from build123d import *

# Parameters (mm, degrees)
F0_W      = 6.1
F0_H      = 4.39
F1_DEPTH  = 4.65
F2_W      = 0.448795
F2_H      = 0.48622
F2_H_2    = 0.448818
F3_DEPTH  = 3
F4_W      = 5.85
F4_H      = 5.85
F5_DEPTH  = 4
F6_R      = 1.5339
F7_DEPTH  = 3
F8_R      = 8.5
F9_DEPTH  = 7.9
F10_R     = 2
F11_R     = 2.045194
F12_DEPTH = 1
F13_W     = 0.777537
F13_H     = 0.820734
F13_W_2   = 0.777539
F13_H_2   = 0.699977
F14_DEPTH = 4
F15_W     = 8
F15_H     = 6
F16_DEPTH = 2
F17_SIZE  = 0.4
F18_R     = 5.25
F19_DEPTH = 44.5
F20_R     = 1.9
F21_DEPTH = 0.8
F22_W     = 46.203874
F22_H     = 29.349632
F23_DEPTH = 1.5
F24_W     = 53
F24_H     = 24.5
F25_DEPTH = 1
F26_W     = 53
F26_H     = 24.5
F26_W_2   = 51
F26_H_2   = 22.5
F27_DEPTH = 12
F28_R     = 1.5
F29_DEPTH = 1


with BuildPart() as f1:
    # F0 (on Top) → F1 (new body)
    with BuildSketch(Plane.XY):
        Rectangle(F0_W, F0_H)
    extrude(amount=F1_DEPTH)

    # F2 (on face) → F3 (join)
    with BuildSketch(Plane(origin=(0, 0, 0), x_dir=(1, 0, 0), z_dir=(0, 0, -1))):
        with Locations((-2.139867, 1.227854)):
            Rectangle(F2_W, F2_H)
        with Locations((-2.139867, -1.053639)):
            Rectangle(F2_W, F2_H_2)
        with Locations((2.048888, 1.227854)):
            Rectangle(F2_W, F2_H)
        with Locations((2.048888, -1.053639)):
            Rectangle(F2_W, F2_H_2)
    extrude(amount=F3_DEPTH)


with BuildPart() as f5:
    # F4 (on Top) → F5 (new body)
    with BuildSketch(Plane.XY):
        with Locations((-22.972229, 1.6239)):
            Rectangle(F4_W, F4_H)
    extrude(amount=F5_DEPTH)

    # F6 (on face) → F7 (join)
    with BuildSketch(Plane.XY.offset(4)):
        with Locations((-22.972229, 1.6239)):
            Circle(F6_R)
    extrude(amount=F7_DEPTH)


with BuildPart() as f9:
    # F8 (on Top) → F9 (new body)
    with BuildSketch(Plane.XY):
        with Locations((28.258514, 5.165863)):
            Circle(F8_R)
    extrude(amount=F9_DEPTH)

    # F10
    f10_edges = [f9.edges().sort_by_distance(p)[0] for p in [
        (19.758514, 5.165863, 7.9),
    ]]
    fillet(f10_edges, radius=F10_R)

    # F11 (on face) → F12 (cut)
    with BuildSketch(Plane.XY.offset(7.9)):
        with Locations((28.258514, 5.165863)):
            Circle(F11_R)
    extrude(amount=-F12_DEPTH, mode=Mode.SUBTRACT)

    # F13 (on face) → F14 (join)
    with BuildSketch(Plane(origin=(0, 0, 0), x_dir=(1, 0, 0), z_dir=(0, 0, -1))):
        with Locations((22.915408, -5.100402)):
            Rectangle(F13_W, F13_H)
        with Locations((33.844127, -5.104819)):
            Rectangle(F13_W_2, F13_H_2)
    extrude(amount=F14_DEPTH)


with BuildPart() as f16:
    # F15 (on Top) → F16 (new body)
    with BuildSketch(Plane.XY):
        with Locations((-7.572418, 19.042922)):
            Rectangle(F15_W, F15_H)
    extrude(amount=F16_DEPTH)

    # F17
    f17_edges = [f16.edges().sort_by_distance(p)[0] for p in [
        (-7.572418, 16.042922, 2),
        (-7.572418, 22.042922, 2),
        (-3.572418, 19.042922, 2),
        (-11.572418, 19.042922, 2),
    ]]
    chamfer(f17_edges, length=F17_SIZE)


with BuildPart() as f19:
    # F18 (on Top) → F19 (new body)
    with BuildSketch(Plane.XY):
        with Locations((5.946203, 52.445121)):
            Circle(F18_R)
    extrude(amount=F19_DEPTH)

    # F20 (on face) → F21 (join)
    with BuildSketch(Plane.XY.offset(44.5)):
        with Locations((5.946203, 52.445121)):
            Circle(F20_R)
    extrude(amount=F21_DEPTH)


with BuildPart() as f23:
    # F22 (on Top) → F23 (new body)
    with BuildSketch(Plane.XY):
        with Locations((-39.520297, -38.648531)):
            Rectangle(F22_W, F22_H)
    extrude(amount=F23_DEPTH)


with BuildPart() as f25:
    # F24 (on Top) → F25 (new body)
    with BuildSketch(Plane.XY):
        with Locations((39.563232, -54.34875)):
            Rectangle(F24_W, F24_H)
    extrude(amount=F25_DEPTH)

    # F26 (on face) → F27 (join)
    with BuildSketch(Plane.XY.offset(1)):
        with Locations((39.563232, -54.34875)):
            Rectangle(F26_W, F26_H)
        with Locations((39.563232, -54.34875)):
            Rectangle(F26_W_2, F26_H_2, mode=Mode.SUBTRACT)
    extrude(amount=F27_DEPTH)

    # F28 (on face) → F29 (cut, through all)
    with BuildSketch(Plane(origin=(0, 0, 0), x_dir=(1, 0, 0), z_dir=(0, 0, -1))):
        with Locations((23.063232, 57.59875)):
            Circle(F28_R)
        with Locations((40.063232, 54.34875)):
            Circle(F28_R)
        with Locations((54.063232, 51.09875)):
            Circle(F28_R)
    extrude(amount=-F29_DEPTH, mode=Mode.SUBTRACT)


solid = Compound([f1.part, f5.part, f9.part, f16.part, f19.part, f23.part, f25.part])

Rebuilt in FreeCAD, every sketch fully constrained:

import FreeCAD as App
import Part
import Sketcher
from FreeCAD import Vector


def edges_at(feature, points):
    """Names of the edges that pass closest to the given points."""
    edges = feature.Shape.Edges
    near = lambda p: min(range(len(edges)), key=lambda i: edges[i].distToShape(Part.Vertex(*p))[0])
    return sorted({f"Edge{near(p) + 1}" for p in points})

doc = App.newDocument("Part")
body = doc.addObject("PartDesign::Body", "Body")

# Sketch on XY plane
sketch1 = doc.addObject("Sketcher::SketchObject", "Sketch")
body.addObject(sketch1)
sketch1.AttachmentSupport = (doc.XY_Plane, [""])
sketch1.MapMode = "FlatFace"
sketch1.addGeometry([
    Part.LineSegment(Vector(-3, 2.2, 0), Vector(-3, -2.2, 0)),
    Part.LineSegment(Vector(-3, -2.2, 0), Vector(3, -2.2, 0)),
    Part.LineSegment(Vector(3, -2.2, 0), Vector(3, 2.2, 0)),
    Part.LineSegment(Vector(3, 2.2, 0), Vector(-3, 2.2, 0)),
], False)
sketch1.addConstraint([
    Sketcher.Constraint("Coincident", 0, 2, 1, 1),
    Sketcher.Constraint("Coincident", 1, 2, 2, 1),
    Sketcher.Constraint("Coincident", 2, 2, 3, 1),
    Sketcher.Constraint("Coincident", 3, 2, 0, 1),
    Sketcher.Constraint("Vertical", 0),
    Sketcher.Constraint("Horizontal", 1),
    Sketcher.Constraint("Vertical", 2),
    Sketcher.Constraint("Horizontal", 3),
    Sketcher.Constraint("Symmetric", 0, 2, 2, 2, -1, 1),
    Sketcher.Constraint("DistanceX", 1, 1, 1, 2, 6.1),
    Sketcher.Constraint("DistanceY", 0, 2, 0, 1, 4.39),
])
pad1 = doc.addObject("PartDesign::Pad", "Pad")
body.addObject(pad1)
pad1.Profile = sketch1
pad1.Length = 4.65

# Sketch on XY plane
sketch2 = doc.addObject("Sketcher::SketchObject", "Sketch001")
body.addObject(sketch2)
sketch2.AttachmentSupport = (doc.XY_Plane, [""])
sketch2.MapMode = "FlatFace"
sketch2.addGeometry([
    Part.LineSegment(Vector(-2.36, -1.47, 0), Vector(-2.36, -0.98, 0)),  # 0
    Part.LineSegment(Vector(-2.36, -0.98, 0), Vector(-1.92, -0.98, 0)),  # 1
    Part.LineSegment(Vector(-1.92, -0.98, 0), Vector(-1.92, -1.47, 0)),  # 2
    Part.LineSegment(Vector(-1.92, -1.47, 0), Vector(-2.36, -1.47, 0)),  # 3
    Part.LineSegment(Vector(-2.36, 0.83, 0), Vector(-2.36, 1.28, 0)),  # 4
    Part.LineSegment(Vector(-2.36, 1.28, 0), Vector(-1.92, 1.28, 0)),  # 5
    Part.LineSegment(Vector(-1.92, 1.28, 0), Vector(-1.92, 0.83, 0)),  # 6
    Part.LineSegment(Vector(-1.92, 0.83, 0), Vector(-2.36, 0.83, 0)),  # 7
    Part.LineSegment(Vector(1.82, -1.47, 0), Vector(1.82, -0.98, 0)),  # 8
    Part.LineSegment(Vector(1.82, -0.98, 0), Vector(2.27, -0.98, 0)),  # 9
    Part.LineSegment(Vector(2.27, -0.98, 0), Vector(2.27, -1.47, 0)),  # 10
    Part.LineSegment(Vector(2.27, -1.47, 0), Vector(1.82, -1.47, 0)),  # 11
    Part.LineSegment(Vector(1.82, 0.83, 0), Vector(1.82, 1.28, 0)),  # 12
    Part.LineSegment(Vector(1.82, 1.28, 0), Vector(2.27, 1.28, 0)),  # 13
    Part.LineSegment(Vector(2.27, 1.28, 0), Vector(2.27, 0.83, 0)),  # 14
    Part.LineSegment(Vector(2.27, 0.83, 0), Vector(1.82, 0.83, 0)),  # 15
], False)
sketch2.addConstraint([
    Sketcher.Constraint("Coincident", 0, 2, 1, 1),
    Sketcher.Constraint("Coincident", 1, 2, 2, 1),
    Sketcher.Constraint("Coincident", 2, 2, 3, 1),
    Sketcher.Constraint("Coincident", 3, 2, 0, 1),
    Sketcher.Constraint("Coincident", 4, 2, 5, 1),
    Sketcher.Constraint("Coincident", 5, 2, 6, 1),
    Sketcher.Constraint("Coincident", 6, 2, 7, 1),
    Sketcher.Constraint("Coincident", 7, 2, 4, 1),
    Sketcher.Constraint("Coincident", 8, 2, 9, 1),
    Sketcher.Constraint("Coincident", 9, 2, 10, 1),
    Sketcher.Constraint("Coincident", 10, 2, 11, 1),
    Sketcher.Constraint("Coincident", 11, 2, 8, 1),
    Sketcher.Constraint("Coincident", 12, 2, 13, 1),
    Sketcher.Constraint("Coincident", 13, 2, 14, 1),
    Sketcher.Constraint("Coincident", 14, 2, 15, 1),
    Sketcher.Constraint("Coincident", 15, 2, 12, 1),
    Sketcher.Constraint("Vertical", 0),
    Sketcher.Constraint("Horizontal", 1),
    Sketcher.Constraint("Vertical", 2),
    Sketcher.Constraint("Horizontal", 3),
    Sketcher.Constraint("Vertical", 4),
    Sketcher.Constraint("Horizontal", 5),
    Sketcher.Constraint("Vertical", 6),
    Sketcher.Constraint("Horizontal", 7),
    Sketcher.Constraint("Vertical", 8),
    Sketcher.Constraint("Horizontal", 9),
    Sketcher.Constraint("Vertical", 10),
    Sketcher.Constraint("Horizontal", 11),
    Sketcher.Constraint("Vertical", 12),
    Sketcher.Constraint("Horizontal", 13),
    Sketcher.Constraint("Vertical", 14),
    Sketcher.Constraint("Horizontal", 15),
    Sketcher.Constraint("Horizontal", 1, 2, 8, 2),
    Sketcher.Constraint("Horizontal", 3, 2, 10, 2),
    Sketcher.Constraint("Horizontal", 5, 2, 12, 2),
    Sketcher.Constraint("Horizontal", 7, 2, 14, 2),
    Sketcher.Constraint("Vertical", 3, 2, 4, 2),
    Sketcher.Constraint("Vertical", 2, 2, 5, 2),
    Sketcher.Constraint("Vertical", 11, 2, 12, 2),
    Sketcher.Constraint("Vertical", 10, 2, 13, 2),
    Sketcher.Constraint("Equal", 7, 9),
    Sketcher.Constraint("DistanceY", 0, 1, 0, 2, 0.48622),
    Sketcher.Constraint("DistanceY", 4, 1, 4, 2, 0.448818),
    Sketcher.Constraint("DistanceX", 1, 1, 1, 2, 0.448795),
    Sketcher.Constraint("DistanceX", 1, 2, -1, 1, 1.915469),
    Sketcher.Constraint("DistanceY", -1, 1, 4, 2, 1.278048),
    Sketcher.Constraint("DistanceX", -1, 1, 8, 2, 1.824491),
    Sketcher.Constraint("DistanceY", 3, 2, 4, 2, 2.749012),
])
pad2 = doc.addObject("PartDesign::Pad", "Pad001")
body.addObject(pad2)
pad2.Profile = sketch2
pad2.Length = 3
pad2.Reversed = True
body2 = doc.addObject("PartDesign::Body", "Body001")

# Sketch on XY plane
sketch3 = doc.addObject("Sketcher::SketchObject", "Sketch002")
body2.addObject(sketch3)
sketch3.AttachmentSupport = (doc.getObject("XY_Plane001"), [""])
sketch3.MapMode = "FlatFace"
sketch3.addGeometry([
    Part.LineSegment(Vector(-26, 5, 0), Vector(-26, -1, 0)),
    Part.LineSegment(Vector(-26, -1, 0), Vector(-20, -1, 0)),
    Part.LineSegment(Vector(-20, -1, 0), Vector(-20, 5, 0)),
    Part.LineSegment(Vector(-20, 5, 0), Vector(-26, 5, 0)),
], False)
sketch3.addConstraint([
    Sketcher.Constraint("Coincident", 0, 2, 1, 1),
    Sketcher.Constraint("Coincident", 1, 2, 2, 1),
    Sketcher.Constraint("Coincident", 2, 2, 3, 1),
    Sketcher.Constraint("Coincident", 3, 2, 0, 1),
    Sketcher.Constraint("Vertical", 0),
    Sketcher.Constraint("Horizontal", 1),
    Sketcher.Constraint("Vertical", 2),
    Sketcher.Constraint("Horizontal", 3),
    Sketcher.Constraint("Equal", 3, 0),
    Sketcher.Constraint("DistanceX", 1, 1, 1, 2, 5.85),
    Sketcher.Constraint("DistanceY", 0, 2, -1, 1, 1.3011),
    Sketcher.Constraint("DistanceX", 0, 2, -1, 1, 25.897229),
])
pad3 = doc.addObject("PartDesign::Pad", "Pad002")
body2.addObject(pad3)
pad3.Profile = sketch3
pad3.Length = 4

# Sketch on XY plane
sketch4 = doc.addObject("Sketcher::SketchObject", "Sketch003")
body2.addObject(sketch4)
sketch4.AttachmentSupport = (doc.getObject("XY_Plane001"), [""])
sketch4.MapMode = "FlatFace"
sketch4.AttachmentOffset = App.Placement(Vector(0, 0, 4), App.Rotation())
sketch4.addGeometry(Part.Circle(Vector(-23, 1.6, 0), Vector(0, 0, 1), 1.5), False)
sketch4.addConstraint([
    Sketcher.Constraint("Diameter", 0, 3.0678),
    Sketcher.Constraint("DistanceY", -1, 1, 0, 3, 1.6239),
    Sketcher.Constraint("DistanceX", 0, 3, -1, 1, 22.972229),
])
pad4 = doc.addObject("PartDesign::Pad", "Pad003")
body2.addObject(pad4)
pad4.Profile = sketch4
pad4.Length = 3
body3 = doc.addObject("PartDesign::Body", "Body002")

# Sketch on XY plane
sketch5 = doc.addObject("Sketcher::SketchObject", "Sketch004")
body3.addObject(sketch5)
sketch5.AttachmentSupport = (doc.getObject("XY_Plane002"), [""])
sketch5.MapMode = "FlatFace"
sketch5.addGeometry(Part.Circle(Vector(28, 5, 0), Vector(0, 0, 1), 8), False)
sketch5.addConstraint([
    Sketcher.Constraint("Diameter", 0, 17.0),
    Sketcher.Constraint("DistanceX", -1, 1, 0, 3, 28.258514),
    Sketcher.Constraint("DistanceY", -1, 1, 0, 3, 5.165863),
])
pad5 = doc.addObject("PartDesign::Pad", "Pad004")
body3.addObject(pad5)
pad5.Profile = sketch5
pad5.Length = 7.9
doc.recompute()

fillet = doc.addObject("PartDesign::Fillet", "Fillet")
body3.addObject(fillet)
fillet.Base = (pad5, edges_at(pad5, [(19.759, 5.166, 7.9)]))
fillet.Radius = 2

# Sketch on XY plane
sketch6 = doc.addObject("Sketcher::SketchObject", "Sketch005")
body3.addObject(sketch6)
sketch6.AttachmentSupport = (doc.getObject("XY_Plane002"), [""])
sketch6.MapMode = "FlatFace"
sketch6.AttachmentOffset = App.Placement(Vector(0, 0, 7.9), App.Rotation())
sketch6.addGeometry(Part.Circle(Vector(28.3, 5.2, 0), Vector(0, 0, 1), 2), False)
sketch6.addConstraint([
    Sketcher.Constraint("Diameter", 0, 4.090388),
    Sketcher.Constraint("DistanceX", -1, 1, 0, 3, 28.258514),
    Sketcher.Constraint("DistanceY", -1, 1, 0, 3, 5.165863),
])
pocket1 = doc.addObject("PartDesign::Pocket", "Pocket")
body3.addObject(pocket1)
pocket1.Profile = sketch6
pocket1.Length = 1

# Sketch on XY plane
sketch7 = doc.addObject("Sketcher::SketchObject", "Sketch006")
body3.addObject(sketch7)
sketch7.AttachmentSupport = (doc.getObject("XY_Plane002"), [""])
sketch7.MapMode = "FlatFace"
sketch7.addGeometry([
    Part.LineSegment(Vector(22.5, 4.7, 0), Vector(22.5, 5.5, 0)),  # 0
    Part.LineSegment(Vector(22.5, 5.5, 0), Vector(23.3, 5.5, 0)),  # 1
    Part.LineSegment(Vector(23.3, 5.5, 0), Vector(23.3, 4.7, 0)),  # 2
    Part.LineSegment(Vector(23.3, 4.7, 0), Vector(22.5, 4.7, 0)),  # 3
    Part.LineSegment(Vector(33.5, 4.8, 0), Vector(33.5, 5.5, 0)),  # 4
    Part.LineSegment(Vector(33.5, 5.5, 0), Vector(34.2, 5.5, 0)),  # 5
    Part.LineSegment(Vector(34.2, 5.5, 0), Vector(34.2, 4.8, 0)),  # 6
    Part.LineSegment(Vector(34.2, 4.8, 0), Vector(33.5, 4.8, 0)),  # 7
], False)
sketch7.addConstraint([
    Sketcher.Constraint("Coincident", 0, 2, 1, 1),
    Sketcher.Constraint("Coincident", 1, 2, 2, 1),
    Sketcher.Constraint("Coincident", 2, 2, 3, 1),
    Sketcher.Constraint("Coincident", 3, 2, 0, 1),
    Sketcher.Constraint("Coincident", 4, 2, 5, 1),
    Sketcher.Constraint("Coincident", 5, 2, 6, 1),
    Sketcher.Constraint("Coincident", 6, 2, 7, 1),
    Sketcher.Constraint("Coincident", 7, 2, 4, 1),
    Sketcher.Constraint("Vertical", 0),
    Sketcher.Constraint("Horizontal", 1),
    Sketcher.Constraint("Vertical", 2),
    Sketcher.Constraint("Horizontal", 3),
    Sketcher.Constraint("Vertical", 4),
    Sketcher.Constraint("Horizontal", 5),
    Sketcher.Constraint("Vertical", 6),
    Sketcher.Constraint("Horizontal", 7),
    Sketcher.Constraint("DistanceX", 5, 1, 5, 2, 0.777539),
    Sketcher.Constraint("DistanceX", 1, 1, 1, 2, 0.777537),
    Sketcher.Constraint("DistanceY", 0, 1, 0, 2, 0.820734),
    Sketcher.Constraint("DistanceY", 4, 1, 4, 2, 0.699977),
    Sketcher.Constraint("DistanceX", -1, 1, 0, 2, 22.52664),
    Sketcher.Constraint("DistanceY", -1, 1, 0, 2, 5.510769),
    Sketcher.Constraint("DistanceY", -1, 1, 6, 2, 4.75483),
    Sketcher.Constraint("DistanceX", 1, 2, 4, 2, 10.151181),
])
pad6 = doc.addObject("PartDesign::Pad", "Pad005")
body3.addObject(pad6)
pad6.Profile = sketch7
pad6.Length = 4
pad6.Reversed = True
body4 = doc.addObject("PartDesign::Body", "Body003")

# Sketch on XY plane
sketch8 = doc.addObject("Sketcher::SketchObject", "Sketch007")
body4.addObject(sketch8)
sketch8.AttachmentSupport = (doc.getObject("XY_Plane003"), [""])
sketch8.MapMode = "FlatFace"
sketch8.addGeometry([
    Part.LineSegment(Vector(-12, 22, 0), Vector(-12, 16, 0)),
    Part.LineSegment(Vector(-12, 16, 0), Vector(-4, 16, 0)),
    Part.LineSegment(Vector(-4, 16, 0), Vector(-4, 22, 0)),
    Part.LineSegment(Vector(-4, 22, 0), Vector(-12, 22, 0)),
], False)
sketch8.addConstraint([
    Sketcher.Constraint("Coincident", 0, 2, 1, 1),
    Sketcher.Constraint("Coincident", 1, 2, 2, 1),
    Sketcher.Constraint("Coincident", 2, 2, 3, 1),
    Sketcher.Constraint("Coincident", 3, 2, 0, 1),
    Sketcher.Constraint("Vertical", 0),
    Sketcher.Constraint("Horizontal", 1),
    Sketcher.Constraint("Vertical", 2),
    Sketcher.Constraint("Horizontal", 3),
    Sketcher.Constraint("DistanceX", 1, 1, 1, 2, 8.0),
    Sketcher.Constraint("DistanceY", 0, 2, 0, 1, 6.0),
    Sketcher.Constraint("DistanceX", 0, 2, -1, 1, 11.572418),
    Sketcher.Constraint("DistanceY", -1, 1, 0, 2, 16.042922),
])
pad7 = doc.addObject("PartDesign::Pad", "Pad006")
body4.addObject(pad7)
pad7.Profile = sketch8
pad7.Length = 2
doc.recompute()

chamfer = doc.addObject("PartDesign::Chamfer", "Chamfer")
body4.addObject(chamfer)
chamfer.Base = (pad7, edges_at(pad7, [
    (-7.572, 16.043, 2),
    (-7.572, 22.043, 2),
    (-3.572, 19.043, 2),
    (-11.572, 19.043, 2),
]))
chamfer.Size = 0.4
body5 = doc.addObject("PartDesign::Body", "Body004")

# Sketch on XY plane
sketch9 = doc.addObject("Sketcher::SketchObject", "Sketch008")
body5.addObject(sketch9)
sketch9.AttachmentSupport = (doc.getObject("XY_Plane004"), [""])
sketch9.MapMode = "FlatFace"
sketch9.addGeometry(Part.Circle(Vector(6, 52, 0), Vector(0, 0, 1), 5), False)
sketch9.addConstraint([
    Sketcher.Constraint("Diameter", 0, 10.5),
    Sketcher.Constraint("DistanceY", -1, 1, 0, 3, 52.445121),
    Sketcher.Constraint("DistanceX", -1, 1, 0, 3, 5.946203),
])
pad8 = doc.addObject("PartDesign::Pad", "Pad007")
body5.addObject(pad8)
pad8.Profile = sketch9
pad8.Length = 44.5

# Sketch on XY plane
sketch10 = doc.addObject("Sketcher::SketchObject", "Sketch009")
body5.addObject(sketch10)
sketch10.AttachmentSupport = (doc.getObject("XY_Plane004"), [""])
sketch10.MapMode = "FlatFace"
sketch10.AttachmentOffset = App.Placement(Vector(0, 0, 44.5), App.Rotation())
sketch10.addGeometry(Part.Circle(Vector(5.9, 52.4, 0), Vector(0, 0, 1), 1.9), False)
sketch10.addConstraint([
    Sketcher.Constraint("Diameter", 0, 3.8),
    Sketcher.Constraint("DistanceY", -1, 1, 0, 3, 52.445121),
    Sketcher.Constraint("DistanceX", -1, 1, 0, 3, 5.946203),
])
pad9 = doc.addObject("PartDesign::Pad", "Pad008")
body5.addObject(pad9)
pad9.Profile = sketch10
pad9.Length = 0.8
body6 = doc.addObject("PartDesign::Body", "Body005")

# Sketch on XY plane
sketch11 = doc.addObject("Sketcher::SketchObject", "Sketch010")
body6.addObject(sketch11)
sketch11.AttachmentSupport = (doc.getObject("XY_Plane005"), [""])
sketch11.MapMode = "FlatFace"
sketch11.addGeometry([
    Part.LineSegment(Vector(-63, -24, 0), Vector(-63, -53, 0)),
    Part.LineSegment(Vector(-63, -53, 0), Vector(-16, -53, 0)),
    Part.LineSegment(Vector(-16, -53, 0), Vector(-16, -24, 0)),
    Part.LineSegment(Vector(-16, -24, 0), Vector(-63, -24, 0)),
], False)
sketch11.addConstraint([
    Sketcher.Constraint("Coincident", 0, 2, 1, 1),
    Sketcher.Constraint("Coincident", 1, 2, 2, 1),
    Sketcher.Constraint("Coincident", 2, 2, 3, 1),
    Sketcher.Constraint("Coincident", 3, 2, 0, 1),
    Sketcher.Constraint("Vertical", 0),
    Sketcher.Constraint("Horizontal", 1),
    Sketcher.Constraint("Vertical", 2),
    Sketcher.Constraint("Horizontal", 3),
    Sketcher.Constraint("DistanceY", 0, 2, 0, 1, 29.349632),
    Sketcher.Constraint("DistanceX", 1, 1, 1, 2, 46.203874),
    Sketcher.Constraint("DistanceX", 1, 2, -1, 1, 16.41836),
    Sketcher.Constraint("DistanceY", 0, 2, -1, 1, 53.323347),
])
pad10 = doc.addObject("PartDesign::Pad", "Pad009")
body6.addObject(pad10)
pad10.Profile = sketch11
pad10.Length = 1.5
body7 = doc.addObject("PartDesign::Body", "Body006")

# Sketch on XY plane
sketch12 = doc.addObject("Sketcher::SketchObject", "Sketch011")
body7.addObject(sketch12)
sketch12.AttachmentSupport = (doc.getObject("XY_Plane006"), [""])
sketch12.MapMode = "FlatFace"
sketch12.addGeometry([
    Part.LineSegment(Vector(13, -42, 0), Vector(13, -67, 0)),
    Part.LineSegment(Vector(13, -67, 0), Vector(66, -67, 0)),
    Part.LineSegment(Vector(66, -67, 0), Vector(66, -42, 0)),
    Part.LineSegment(Vector(66, -42, 0), Vector(13, -42, 0)),
], False)
sketch12.addConstraint([
    Sketcher.Constraint("Coincident", 0, 2, 1, 1),
    Sketcher.Constraint("Coincident", 1, 2, 2, 1),
    Sketcher.Constraint("Coincident", 2, 2, 3, 1),
    Sketcher.Constraint("Coincident", 3, 2, 0, 1),
    Sketcher.Constraint("Vertical", 0),
    Sketcher.Constraint("Horizontal", 1),
    Sketcher.Constraint("Vertical", 2),
    Sketcher.Constraint("Horizontal", 3),
    Sketcher.Constraint("DistanceX", 1, 1, 1, 2, 53.0),
    Sketcher.Constraint("DistanceY", 0, 2, 0, 1, 24.5),
    Sketcher.Constraint("DistanceX", -1, 1, 0, 2, 13.063232),
    Sketcher.Constraint("DistanceY", 0, 2, -1, 1, 66.59875),
])
pad11 = doc.addObject("PartDesign::Pad", "Pad010")
body7.addObject(pad11)
pad11.Profile = sketch12
pad11.Length = 1

# Sketch on XY plane
sketch13 = doc.addObject("Sketcher::SketchObject", "Sketch012")
body7.addObject(sketch13)
sketch13.AttachmentSupport = (doc.getObject("XY_Plane006"), [""])
sketch13.MapMode = "FlatFace"
sketch13.AttachmentOffset = App.Placement(Vector(0, 0, 1), App.Rotation())
sketch13.addGeometry([
    Part.LineSegment(Vector(13, -42, 0), Vector(13, -67, 0)),  # 0
    Part.LineSegment(Vector(13, -67, 0), Vector(66, -67, 0)),  # 1
    Part.LineSegment(Vector(66, -67, 0), Vector(66, -42, 0)),  # 2
    Part.LineSegment(Vector(66, -42, 0), Vector(13, -42, 0)),  # 3
    Part.LineSegment(Vector(65, -66, 0), Vector(14, -66, 0)),  # 4
    Part.LineSegment(Vector(14, -66, 0), Vector(14, -43, 0)),  # 5
    Part.LineSegment(Vector(14, -43, 0), Vector(65, -43, 0)),  # 6
    Part.LineSegment(Vector(65, -43, 0), Vector(65, -66, 0)),  # 7
], False)
sketch13.addConstraint([
    Sketcher.Constraint("Coincident", 0, 2, 1, 1),
    Sketcher.Constraint("Coincident", 1, 2, 2, 1),
    Sketcher.Constraint("Coincident", 2, 2, 3, 1),
    Sketcher.Constraint("Coincident", 3, 2, 0, 1),
    Sketcher.Constraint("Coincident", 4, 2, 5, 1),
    Sketcher.Constraint("Coincident", 5, 2, 6, 1),
    Sketcher.Constraint("Coincident", 6, 2, 7, 1),
    Sketcher.Constraint("Coincident", 7, 2, 4, 1),
    Sketcher.Constraint("Vertical", 0),
    Sketcher.Constraint("Horizontal", 1),
    Sketcher.Constraint("Vertical", 2),
    Sketcher.Constraint("Horizontal", 3),
    Sketcher.Constraint("Horizontal", 4),
    Sketcher.Constraint("Vertical", 5),
    Sketcher.Constraint("Horizontal", 6),
    Sketcher.Constraint("Vertical", 7),
    Sketcher.Constraint("DistanceX", 1, 1, 1, 2, 53.0),
    Sketcher.Constraint("DistanceX", 4, 2, 4, 1, 51.0),
    Sketcher.Constraint("DistanceY", 0, 2, 0, 1, 24.5),
    Sketcher.Constraint("DistanceY", 5, 1, 5, 2, 22.5),
    Sketcher.Constraint("DistanceX", 0, 2, 4, 2, 1.0),
    Sketcher.Constraint("DistanceY", 0, 2, 4, 2, 1.0),
    Sketcher.Constraint("DistanceX", -1, 1, 0, 2, 13.063232),
    Sketcher.Constraint("DistanceY", 0, 2, -1, 1, 66.59875),
])
pad12 = doc.addObject("PartDesign::Pad", "Pad011")
body7.addObject(pad12)
pad12.Profile = sketch13
pad12.Length = 12

# Sketch on XY plane
sketch14 = doc.addObject("Sketcher::SketchObject", "Sketch013")
body7.addObject(sketch14)
sketch14.AttachmentSupport = (doc.getObject("XY_Plane006"), [""])
sketch14.MapMode = "FlatFace"
sketch14.addGeometry([
    Part.Circle(Vector(23.1, -57.6, 0), Vector(0, 0, 1), 1.5),
    Part.Circle(Vector(40.1, -54.3, 0), Vector(0, 0, 1), 1.5),
    Part.Circle(Vector(54.1, -51.1, 0), Vector(0, 0, 1), 1.5),
], False)
sketch14.addConstraint([
    Sketcher.Constraint("Equal", 0, 1),
    Sketcher.Constraint("Equal", 1, 2),
    Sketcher.Constraint("Diameter", 0, 3.0),
    Sketcher.Constraint("DistanceX", 0, 3, 1, 3, 17.0),
    Sketcher.Constraint("DistanceX", 1, 3, 2, 3, 14.0),
    Sketcher.Constraint("DistanceY", 0, 3, 2, 3, 6.5),
    Sketcher.Constraint("DistanceY", 0, 3, 1, 3, 3.25),
    Sketcher.Constraint("DistanceX", -1, 1, 0, 3, 23.063232),
    Sketcher.Constraint("DistanceY", 0, 3, -1, 1, 57.59875),
])
pocket2 = doc.addObject("PartDesign::Pocket", "Pocket001")
body7.addObject(pocket2)
pocket2.Profile = sketch14
pocket2.Type = "ThroughAll"
pocket2.Reversed = True

doc.recompute()
